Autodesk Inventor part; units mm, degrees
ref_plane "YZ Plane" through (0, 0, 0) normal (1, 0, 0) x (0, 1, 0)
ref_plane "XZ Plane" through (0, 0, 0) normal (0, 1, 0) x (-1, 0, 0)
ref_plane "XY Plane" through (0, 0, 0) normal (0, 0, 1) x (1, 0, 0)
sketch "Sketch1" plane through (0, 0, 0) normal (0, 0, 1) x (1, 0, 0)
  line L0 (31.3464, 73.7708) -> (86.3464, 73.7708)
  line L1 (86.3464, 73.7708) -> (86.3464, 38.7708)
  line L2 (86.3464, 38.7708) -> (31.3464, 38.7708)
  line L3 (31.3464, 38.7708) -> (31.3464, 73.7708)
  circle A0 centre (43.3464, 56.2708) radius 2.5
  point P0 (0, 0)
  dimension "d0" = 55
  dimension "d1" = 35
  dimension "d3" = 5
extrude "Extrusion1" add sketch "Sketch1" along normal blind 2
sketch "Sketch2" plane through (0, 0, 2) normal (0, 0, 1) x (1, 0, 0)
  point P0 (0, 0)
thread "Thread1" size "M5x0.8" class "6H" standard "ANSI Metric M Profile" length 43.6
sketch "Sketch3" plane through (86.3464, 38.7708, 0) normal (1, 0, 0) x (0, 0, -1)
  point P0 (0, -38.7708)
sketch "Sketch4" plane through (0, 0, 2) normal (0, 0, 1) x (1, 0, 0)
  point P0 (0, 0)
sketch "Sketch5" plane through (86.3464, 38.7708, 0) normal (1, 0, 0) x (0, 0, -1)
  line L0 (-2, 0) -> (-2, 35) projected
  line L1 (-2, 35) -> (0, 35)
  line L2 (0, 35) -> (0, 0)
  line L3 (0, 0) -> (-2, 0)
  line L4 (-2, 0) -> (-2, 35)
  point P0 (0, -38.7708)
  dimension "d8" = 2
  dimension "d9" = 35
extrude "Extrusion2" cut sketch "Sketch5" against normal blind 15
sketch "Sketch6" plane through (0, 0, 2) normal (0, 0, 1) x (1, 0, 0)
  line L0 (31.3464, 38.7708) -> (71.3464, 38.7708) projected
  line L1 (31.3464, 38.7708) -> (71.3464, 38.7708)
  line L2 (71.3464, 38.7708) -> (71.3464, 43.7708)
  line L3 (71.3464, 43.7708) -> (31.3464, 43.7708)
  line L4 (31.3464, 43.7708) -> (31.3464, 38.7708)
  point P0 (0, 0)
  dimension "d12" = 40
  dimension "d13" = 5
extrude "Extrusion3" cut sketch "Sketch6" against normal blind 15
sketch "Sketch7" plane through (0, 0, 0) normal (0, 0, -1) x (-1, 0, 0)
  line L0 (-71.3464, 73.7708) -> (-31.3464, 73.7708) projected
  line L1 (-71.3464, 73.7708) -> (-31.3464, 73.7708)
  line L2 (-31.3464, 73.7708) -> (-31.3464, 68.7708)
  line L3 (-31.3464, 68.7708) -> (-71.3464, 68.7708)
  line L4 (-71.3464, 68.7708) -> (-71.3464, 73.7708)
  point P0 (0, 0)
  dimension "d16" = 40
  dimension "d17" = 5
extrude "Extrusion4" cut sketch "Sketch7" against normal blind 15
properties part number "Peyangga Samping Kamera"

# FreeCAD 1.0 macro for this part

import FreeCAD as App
import Part
import Sketcher
Q = App.Units.Quantity

doc = App.newDocument("Part")
body = doc.addObject("PartDesign::Body", "Body")

# Sketch on XY plane
sketch1 = doc.addObject("Sketcher::SketchObject", "Sketch")
body.addObject(sketch1)
sketch1.AttachmentSupport = (doc.XY_Plane, [""])
sketch1.MapMode = "FlatFace"
sketch1.addGeometry([
    Part.LineSegment(App.Vector(86.3, 73.8, 0), App.Vector(31.3, 73.8, 0)),  # 0
    Part.LineSegment(App.Vector(31.3, 73.8, 0), App.Vector(31.3, 38.8, 0)),  # 1
    Part.LineSegment(App.Vector(31.3, 38.8, 0), App.Vector(86.3, 38.8, 0)),  # 2
    Part.LineSegment(App.Vector(86.3, 38.8, 0), App.Vector(86.3, 73.8, 0)),  # 3
    Part.Circle(App.Vector(43.3, 56.3, 0), App.Vector(0, 0, 1), 2.5),  # 4
], False)
sketch1.addConstraint([
    Sketcher.Constraint("Coincident", 0, 2, 1, 1),
    Sketcher.Constraint("Coincident", 1, 2, 2, 1),
    Sketcher.Constraint("Coincident", 2, 2, 3, 1),
    Sketcher.Constraint("Coincident", 3, 2, 0, 1),
    Sketcher.Constraint("Horizontal", 0),
    Sketcher.Constraint("Vertical", 1),
    Sketcher.Constraint("Horizontal", 2),
    Sketcher.Constraint("Vertical", 3),
    Sketcher.Constraint("Diameter", 4, Q("5 mm")),
    Sketcher.Constraint("DistanceX", 0, 2, 0, 1, Q("55 mm")),
    Sketcher.Constraint("DistanceY", 1, 2, 1, 1, Q("35 mm")),
    Sketcher.Constraint("DistanceX", 0, 2, 4, 3, Q("12 mm")),
    Sketcher.Constraint("DistanceY", 4, 3, 0, 2, Q("17.5 mm")),
    Sketcher.Constraint("DistanceX", -1, 1, 4, 3, Q("43.3464 mm")),
    Sketcher.Constraint("DistanceY", -1, 1, 4, 3, Q("56.2708 mm")),
])
pad1 = doc.addObject("PartDesign::Pad", "Pad")
body.addObject(pad1)
pad1.Profile = sketch1
pad1.Length = 2

# Sketch on YZ plane
sketch2 = doc.addObject("Sketcher::SketchObject", "Sketch001")
body.addObject(sketch2)
sketch2.AttachmentSupport = (doc.YZ_Plane, [""])
sketch2.MapMode = "FlatFace"
sketch2.AttachmentOffset = App.Placement(App.Vector(0, 0, 86.3464), App.Rotation())
sketch2.addGeometry([
    Part.LineSegment(App.Vector(73.8, 2, 0), App.Vector(38.8, 2, 0)),
    Part.LineSegment(App.Vector(38.8, 2, 0), App.Vector(38.8, 0, 0)),
    Part.LineSegment(App.Vector(38.8, 0, 0), App.Vector(73.8, 0, 0)),
    Part.LineSegment(App.Vector(73.8, 0, 0), App.Vector(73.8, 2, 0)),
], False)
sketch2.addConstraint([
    Sketcher.Constraint("Coincident", 0, 2, 1, 1),
    Sketcher.Constraint("Coincident", 1, 2, 2, 1),
    Sketcher.Constraint("Coincident", 2, 2, 3, 1),
    Sketcher.Constraint("Coincident", 3, 2, 0, 1),
    Sketcher.Constraint("Horizontal", 0),
    Sketcher.Constraint("Vertical", 1),
    Sketcher.Constraint("Horizontal", 2),
    Sketcher.Constraint("Vertical", 3),
    Sketcher.Constraint("PointOnObject", 1, 2, -1),
    Sketcher.Constraint("DistanceX", 0, 2, 0, 1, Q("35 mm")),
    Sketcher.Constraint("DistanceY", 1, 2, 1, 1, Q("2 mm")),
    Sketcher.Constraint("DistanceX", -1, 1, 0, 2, Q("38.7708 mm")),
])
pocket1 = doc.addObject("PartDesign::Pocket", "Pocket")
body.addObject(pocket1)
pocket1.Profile = sketch2
pocket1.Length = 15

# Sketch on XY plane
sketch3 = doc.addObject("Sketcher::SketchObject", "Sketch002")
body.addObject(sketch3)
sketch3.AttachmentSupport = (doc.XY_Plane, [""])
sketch3.MapMode = "FlatFace"
sketch3.AttachmentOffset = App.Placement(App.Vector(0, 0, 2), App.Rotation())
sketch3.addGeometry([
    Part.LineSegment(App.Vector(31, 44, 0), App.Vector(31, 39, 0)),
    Part.LineSegment(App.Vector(31, 39, 0), App.Vector(71, 39, 0)),
    Part.LineSegment(App.Vector(71, 39, 0), App.Vector(71, 44, 0)),
    Part.LineSegment(App.Vector(71, 44, 0), App.Vector(31, 44, 0)),
], False)
sketch3.addConstraint([
    Sketcher.Constraint("Coincident", 0, 2, 1, 1),
    Sketcher.Constraint("Coincident", 1, 2, 2, 1),
    Sketcher.Constraint("Coincident", 2, 2, 3, 1),
    Sketcher.Constraint("Coincident", 3, 2, 0, 1),
    Sketcher.Constraint("Vertical", 0),
    Sketcher.Constraint("Horizontal", 1),
    Sketcher.Constraint("Vertical", 2),
    Sketcher.Constraint("Horizontal", 3),
    Sketcher.Constraint("DistanceX", 1, 1, 1, 2, Q("40 mm")),
    Sketcher.Constraint("DistanceY", 0, 2, 0, 1, Q("5 mm")),
    Sketcher.Constraint("DistanceX", -1, 1, 0, 2, Q("31.3464 mm")),
    Sketcher.Constraint("DistanceY", -1, 1, 0, 2, Q("38.7708 mm")),
])
pocket2 = doc.addObject("PartDesign::Pocket", "Pocket001")
body.addObject(pocket2)
pocket2.Profile = sketch3
pocket2.Length = 15

# Sketch on XY plane
sketch4 = doc.addObject("Sketcher::SketchObject", "Sketch003")
body.addObject(sketch4)
sketch4.AttachmentSupport = (doc.XY_Plane, [""])
sketch4.MapMode = "FlatFace"
sketch4.addGeometry([
    Part.LineSegment(App.Vector(31, 74, 0), App.Vector(71, 74, 0)),
    Part.LineSegment(App.Vector(71, 74, 0), App.Vector(71, 69, 0)),
    Part.LineSegment(App.Vector(71, 69, 0), App.Vector(31, 69, 0)),
    Part.LineSegment(App.Vector(31, 69, 0), App.Vector(31, 74, 0)),
], False)
sketch4.addConstraint([
    Sketcher.Constraint("Coincident", 0, 2, 1, 1),
    Sketcher.Constraint("Coincident", 1, 2, 2, 1),
    Sketcher.Constraint("Coincident", 2, 2, 3, 1),
    Sketcher.Constraint("Coincident", 3, 2, 0, 1),
    Sketcher.Constraint("Horizontal", 0),
    Sketcher.Constraint("Vertical", 1),
    Sketcher.Constraint("Horizontal", 2),
    Sketcher.Constraint("Vertical", 3),
    Sketcher.Constraint("DistanceX", 0, 1, 0, 2, Q("40 mm")),
    Sketcher.Constraint("DistanceY", 1, 2, 1, 1, Q("5 mm")),
    Sketcher.Constraint("DistanceX", -1, 1, 0, 2, Q("71.3464 mm")),
    Sketcher.Constraint("DistanceY", -1, 1, 0, 2, Q("73.7708 mm")),
])
pocket3 = doc.addObject("PartDesign::Pocket", "Pocket002")
body.addObject(pocket3)
pocket3.Profile = sketch4
pocket3.Length = 15
pocket3.Reversed = True

doc.recompute()
